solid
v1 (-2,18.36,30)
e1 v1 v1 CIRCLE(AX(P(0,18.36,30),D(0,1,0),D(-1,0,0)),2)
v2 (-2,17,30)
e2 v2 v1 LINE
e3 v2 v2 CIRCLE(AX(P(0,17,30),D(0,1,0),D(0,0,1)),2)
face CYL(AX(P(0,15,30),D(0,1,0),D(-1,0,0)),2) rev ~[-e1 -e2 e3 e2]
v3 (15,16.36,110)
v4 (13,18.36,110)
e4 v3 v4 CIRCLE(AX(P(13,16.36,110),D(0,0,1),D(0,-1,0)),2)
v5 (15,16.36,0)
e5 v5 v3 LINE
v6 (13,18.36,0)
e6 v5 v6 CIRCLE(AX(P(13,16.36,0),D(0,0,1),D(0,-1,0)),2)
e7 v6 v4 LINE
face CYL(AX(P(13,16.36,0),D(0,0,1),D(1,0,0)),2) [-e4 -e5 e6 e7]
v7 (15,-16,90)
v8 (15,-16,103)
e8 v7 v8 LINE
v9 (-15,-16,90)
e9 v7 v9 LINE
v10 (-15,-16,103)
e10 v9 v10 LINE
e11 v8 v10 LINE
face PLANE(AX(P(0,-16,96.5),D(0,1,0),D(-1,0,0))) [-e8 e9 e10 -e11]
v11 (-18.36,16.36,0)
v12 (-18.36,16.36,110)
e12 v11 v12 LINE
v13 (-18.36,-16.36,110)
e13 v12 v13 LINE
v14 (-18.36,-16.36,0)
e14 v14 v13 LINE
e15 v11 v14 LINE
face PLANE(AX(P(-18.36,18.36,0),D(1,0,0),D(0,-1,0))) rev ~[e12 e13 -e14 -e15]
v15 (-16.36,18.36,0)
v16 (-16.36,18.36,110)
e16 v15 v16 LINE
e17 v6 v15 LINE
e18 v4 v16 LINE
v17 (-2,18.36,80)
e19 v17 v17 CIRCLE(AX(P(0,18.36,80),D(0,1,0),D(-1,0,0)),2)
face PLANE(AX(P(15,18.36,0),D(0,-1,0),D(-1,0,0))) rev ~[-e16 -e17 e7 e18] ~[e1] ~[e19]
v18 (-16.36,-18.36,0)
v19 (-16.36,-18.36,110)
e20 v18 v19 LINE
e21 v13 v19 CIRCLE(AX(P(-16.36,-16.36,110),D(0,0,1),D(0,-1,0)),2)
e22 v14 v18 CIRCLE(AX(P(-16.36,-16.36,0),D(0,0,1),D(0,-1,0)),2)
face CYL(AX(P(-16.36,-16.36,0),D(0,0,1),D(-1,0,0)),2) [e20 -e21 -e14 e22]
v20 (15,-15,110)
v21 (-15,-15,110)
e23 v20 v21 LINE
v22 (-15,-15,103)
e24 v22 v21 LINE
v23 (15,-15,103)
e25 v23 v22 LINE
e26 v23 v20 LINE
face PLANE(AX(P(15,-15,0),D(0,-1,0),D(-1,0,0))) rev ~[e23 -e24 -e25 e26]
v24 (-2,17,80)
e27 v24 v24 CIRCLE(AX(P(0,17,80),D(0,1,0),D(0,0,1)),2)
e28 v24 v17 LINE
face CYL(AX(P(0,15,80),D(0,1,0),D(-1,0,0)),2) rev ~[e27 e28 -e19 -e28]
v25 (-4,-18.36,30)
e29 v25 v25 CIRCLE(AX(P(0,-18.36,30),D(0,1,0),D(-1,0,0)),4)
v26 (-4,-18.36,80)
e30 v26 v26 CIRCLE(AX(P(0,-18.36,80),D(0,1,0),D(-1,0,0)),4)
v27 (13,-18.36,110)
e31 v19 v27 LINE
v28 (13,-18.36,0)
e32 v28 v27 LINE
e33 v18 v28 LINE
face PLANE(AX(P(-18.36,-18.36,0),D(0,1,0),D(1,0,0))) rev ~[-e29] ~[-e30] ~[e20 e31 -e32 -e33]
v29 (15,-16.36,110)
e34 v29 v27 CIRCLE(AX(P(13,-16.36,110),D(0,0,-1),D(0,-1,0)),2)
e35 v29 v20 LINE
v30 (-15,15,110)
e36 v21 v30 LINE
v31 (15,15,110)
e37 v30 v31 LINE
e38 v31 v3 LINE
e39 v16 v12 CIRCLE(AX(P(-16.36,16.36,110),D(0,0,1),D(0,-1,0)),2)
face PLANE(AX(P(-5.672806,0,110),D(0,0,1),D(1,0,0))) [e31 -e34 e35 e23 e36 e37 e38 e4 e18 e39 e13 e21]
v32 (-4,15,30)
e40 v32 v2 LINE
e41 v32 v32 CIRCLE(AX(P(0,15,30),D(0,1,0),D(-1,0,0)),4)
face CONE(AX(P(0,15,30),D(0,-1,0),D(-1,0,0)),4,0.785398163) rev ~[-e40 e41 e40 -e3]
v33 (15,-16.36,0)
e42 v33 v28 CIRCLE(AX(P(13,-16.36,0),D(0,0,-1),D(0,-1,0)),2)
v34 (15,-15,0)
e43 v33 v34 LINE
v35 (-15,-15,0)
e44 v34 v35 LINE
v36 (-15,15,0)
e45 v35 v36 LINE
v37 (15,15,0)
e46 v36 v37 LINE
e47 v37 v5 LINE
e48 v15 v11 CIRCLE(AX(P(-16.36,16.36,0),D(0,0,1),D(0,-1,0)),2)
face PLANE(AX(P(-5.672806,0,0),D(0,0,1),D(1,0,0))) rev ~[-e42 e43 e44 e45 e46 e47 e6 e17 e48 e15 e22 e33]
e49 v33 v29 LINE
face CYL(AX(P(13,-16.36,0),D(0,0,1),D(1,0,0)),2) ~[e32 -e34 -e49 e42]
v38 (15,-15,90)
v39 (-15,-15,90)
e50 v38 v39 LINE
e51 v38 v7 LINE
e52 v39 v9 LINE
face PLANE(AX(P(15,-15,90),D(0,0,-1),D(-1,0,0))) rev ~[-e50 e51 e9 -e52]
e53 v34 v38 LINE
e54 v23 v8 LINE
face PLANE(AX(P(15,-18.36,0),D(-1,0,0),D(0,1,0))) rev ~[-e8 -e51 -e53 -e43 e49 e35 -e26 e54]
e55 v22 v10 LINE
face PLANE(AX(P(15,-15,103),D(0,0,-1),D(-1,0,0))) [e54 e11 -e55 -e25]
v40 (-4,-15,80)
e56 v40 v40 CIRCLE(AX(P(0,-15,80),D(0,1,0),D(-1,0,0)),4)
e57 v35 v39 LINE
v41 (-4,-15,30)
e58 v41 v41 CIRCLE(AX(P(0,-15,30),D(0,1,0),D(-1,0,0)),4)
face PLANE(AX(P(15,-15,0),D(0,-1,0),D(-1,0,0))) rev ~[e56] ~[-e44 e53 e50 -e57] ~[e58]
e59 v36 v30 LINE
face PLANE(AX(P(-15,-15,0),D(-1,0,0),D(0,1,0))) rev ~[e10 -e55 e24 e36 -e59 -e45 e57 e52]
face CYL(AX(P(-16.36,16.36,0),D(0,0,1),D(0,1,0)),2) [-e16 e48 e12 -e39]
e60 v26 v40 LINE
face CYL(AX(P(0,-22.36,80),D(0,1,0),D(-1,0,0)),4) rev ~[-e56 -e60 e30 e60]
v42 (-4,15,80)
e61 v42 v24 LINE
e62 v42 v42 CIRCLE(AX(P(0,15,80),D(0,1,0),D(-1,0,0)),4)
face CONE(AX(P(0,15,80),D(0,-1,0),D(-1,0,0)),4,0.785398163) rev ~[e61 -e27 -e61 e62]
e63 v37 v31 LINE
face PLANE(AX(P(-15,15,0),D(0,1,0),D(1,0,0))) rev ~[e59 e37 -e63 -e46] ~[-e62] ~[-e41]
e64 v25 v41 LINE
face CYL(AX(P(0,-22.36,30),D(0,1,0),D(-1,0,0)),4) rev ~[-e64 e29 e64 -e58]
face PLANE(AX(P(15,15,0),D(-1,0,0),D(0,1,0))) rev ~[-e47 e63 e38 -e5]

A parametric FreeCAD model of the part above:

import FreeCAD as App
import Part
import Sketcher


def edges_at(feature, points):
    """Names of the edges that pass closest to the given points."""
    edges = feature.Shape.Edges
    near = lambda p: min(range(len(edges)), key=lambda i: edges[i].distToShape(Part.Vertex(*p))[0])
    return sorted({f"Edge{near(p) + 1}" for p in points})

doc = App.newDocument("Part")
params = doc.addObject("Spreadsheet::Sheet", "Params")
for row, (alias, value) in enumerate([
    ("sketch1_width", "30 mm"),
    ("sketch1_width2", "33.36 mm"),
    ("sketch1_height", "3.36 mm"),
    ("pad1_length", "110 mm"),
    ("fillet_radius", "2 mm"),
    ("sketch2_diameter", "8 mm"),
    ("hole_diameter", "8 mm"),
    ("hole_depth", "4 mm"),
    ("sketch3_diameter", "4 mm"),
    ("hole2_diameter", "4 mm"),
    ("hole2_depth", "4 mm"),
    ("hole2_csink_diameter", "8 mm"),
    ("sketch4_width", "30 mm"),
    ("sketch4_height", "13 mm"),
    ("pocket1_length", "1 mm"),
], start=1):
    params.set(f"A{row}", alias)
    params.set(f"B{row}", "=" + value)
    params.setAlias(f"B{row}", alias)

body = doc.addObject("PartDesign::Body", "Body")

sketch1 = body.newObject("Sketcher::SketchObject", "Sketch")
sketch1.AttachmentSupport = (doc.getObject("XY_Plane"), [""])
sketch1.MapMode = "FlatFace"
sketch1.addGeometry([
    Part.LineSegment(App.Vector(15, -18.36, 0), App.Vector(15, -15, 0)),
    Part.LineSegment(App.Vector(15, -15, 0), App.Vector(-15, -15, 0)),
    Part.LineSegment(App.Vector(-15, -15, 0), App.Vector(-15, 15, 0)),
    Part.LineSegment(App.Vector(-15, 15, 0), App.Vector(15, 15, 0)),
    Part.LineSegment(App.Vector(15, 15, 0), App.Vector(15, 18.36, 0)),
    Part.LineSegment(App.Vector(15, 18.36, 0), App.Vector(-18.36, 18.36, 0)),
    Part.LineSegment(App.Vector(-18.36, 18.36, 0), App.Vector(-18.36, -18.36, 0)),
    Part.LineSegment(App.Vector(-18.36, -18.36, 0), App.Vector(15, -18.36, 0)),
], False)
sketch1.addConstraint([
    Sketcher.Constraint("Coincident", 0, 2, 1, 1),
    Sketcher.Constraint("Coincident", 1, 2, 2, 1),
    Sketcher.Constraint("Coincident", 2, 2, 3, 1),
    Sketcher.Constraint("Coincident", 3, 2, 4, 1),
    Sketcher.Constraint("Coincident", 4, 2, 5, 1),
    Sketcher.Constraint("Coincident", 5, 2, 6, 1),
    Sketcher.Constraint("Coincident", 6, 2, 7, 1),
    Sketcher.Constraint("Coincident", 7, 2, 0, 1),
    Sketcher.Constraint("Vertical", 0),
    Sketcher.Constraint("Horizontal", 1),
    Sketcher.Constraint("Vertical", 2),
    Sketcher.Constraint("Horizontal", 3),
    Sketcher.Constraint("Vertical", 4),
    Sketcher.Constraint("Horizontal", 5),
    Sketcher.Constraint("Vertical", 6),
    Sketcher.Constraint("Horizontal", 7),
    Sketcher.Constraint("Symmetric", 0, 2, 2, 2, -1, 1),
    Sketcher.Constraint("Symmetric", 4, 2, 7, 2, -1),
    Sketcher.Constraint("Equal", 3, 2),
    Sketcher.Constraint("DistanceX", 1, 2, 1, 1, 30.0),
    Sketcher.Constraint("DistanceX", 5, 2, 5, 1, 33.36),
    Sketcher.Constraint("DistanceY", 0, 1, 0, 2, 3.36),
])
sketch1.setExpression("Constraints[19]", "Params.sketch1_width")
sketch1.setExpression("Constraints[20]", "Params.sketch1_width2")
sketch1.setExpression("Constraints[21]", "Params.sketch1_height")
pad1 = body.newObject("PartDesign::Pad", "Pad")
pad1.Profile = sketch1
pad1.setExpression("Length", "Params.pad1_length")
doc.recompute()

fillet = body.newObject("PartDesign::Fillet", "Fillet")
fillet.Base = (pad1, edges_at(pad1, [
    (-18.36, -18.36, 55),
    (-18.36, 18.36, 55),
    (15, -18.36, 55),
    (15, 18.36, 55),
]))
fillet.setExpression("Radius", "Params.fillet_radius")

sketch2 = body.newObject("Sketcher::SketchObject", "Sketch001")
sketch2.AttachmentSupport = (doc.getObject("XZ_Plane"), [""])
sketch2.MapMode = "FlatFace"
sketch2.AttachmentOffset = App.Placement(App.Vector(0, 0, 18.36), App.Rotation())
sketch2.addGeometry([
    Part.Circle(App.Vector(0, 30, 0), App.Vector(0, 0, 1), 4),
    Part.Circle(App.Vector(0, 80, 0), App.Vector(0, 0, 1), 4),
], False)
sketch2.addConstraint([
    Sketcher.Constraint("Equal", 0, 1),
    Sketcher.Constraint("PointOnObject", 0, 3, -2),
    Sketcher.Constraint("PointOnObject", 1, 3, -2),
    Sketcher.Constraint("Diameter", 0, 8.0),
    Sketcher.Constraint("DistanceY", -1, 1, 0, 3, 30.0),
    Sketcher.Constraint("DistanceY", -1, 1, 1, 3, 80.0),
])
sketch2.setExpression("Constraints[3]", "Params.sketch2_diameter")
doc.recompute()
hole = body.newObject("PartDesign::Hole", "Hole")
hole.Profile = sketch2
hole.ThreadType = "None"
hole.setExpression("Diameter", "Params.hole_diameter")
hole.DepthType = "Dimension"
hole.setExpression("Depth", "Params.hole_depth")
hole.DrillPoint = "Flat"

sketch3 = body.newObject("Sketcher::SketchObject", "Sketch002")
sketch3.AttachmentSupport = (doc.getObject("XZ_Plane"), [""])
sketch3.MapMode = "FlatFace"
sketch3.AttachmentOffset = App.Placement(App.Vector(0, 0, -15), App.Rotation())
sketch3.addGeometry([
    Part.Circle(App.Vector(0, 30, 0), App.Vector(0, 0, 1), 2),
    Part.Circle(App.Vector(0, 80, 0), App.Vector(0, 0, 1), 2),
], False)
sketch3.addConstraint([
    Sketcher.Constraint("Equal", 0, 1),
    Sketcher.Constraint("PointOnObject", 0, 3, -2),
    Sketcher.Constraint("PointOnObject", 1, 3, -2),
    Sketcher.Constraint("Diameter", 0, 4.0),
    Sketcher.Constraint("DistanceY", -1, 1, 0, 3, 30.0),
    Sketcher.Constraint("DistanceY", -1, 1, 1, 3, 80.0),
])
sketch3.setExpression("Constraints[3]", "Params.sketch3_diameter")
doc.recompute()
hole2 = body.newObject("PartDesign::Hole", "Hole001")
hole2.Profile = sketch3
hole2.ThreadType = "None"
hole2.setExpression("Diameter", "Params.hole2_diameter")
hole2.DepthType = "Dimension"
hole2.setExpression("Depth", "Params.hole2_depth")
hole2.DrillPoint = "Flat"
hole2.HoleCutType = "Countersink"
hole2.setExpression("HoleCutDiameter", "Params.hole2_csink_diameter")
hole2.HoleCutCountersinkAngle = 90

sketch4 = body.newObject("Sketcher::SketchObject", "Sketch003")
sketch4.AttachmentSupport = (doc.getObject("XZ_Plane"), [""])
sketch4.MapMode = "FlatFace"
sketch4.AttachmentOffset = App.Placement(App.Vector(0, 0, 15), App.Rotation())
sketch4.addGeometry([
    Part.LineSegment(App.Vector(15, 103, 0), App.Vector(15, 90, 0)),
    Part.LineSegment(App.Vector(15, 90, 0), App.Vector(-15, 90, 0)),
    Part.LineSegment(App.Vector(-15, 90, 0), App.Vector(-15, 103, 0)),
    Part.LineSegment(App.Vector(-15, 103, 0), App.Vector(15, 103, 0)),
], False)
sketch4.addConstraint([
    Sketcher.Constraint("Coincident", 0, 2, 1, 1),
    Sketcher.Constraint("Coincident", 1, 2, 2, 1),
    Sketcher.Constraint("Coincident", 2, 2, 3, 1),
    Sketcher.Constraint("Coincident", 3, 2, 0, 1),
    Sketcher.Constraint("Vertical", 0),
    Sketcher.Constraint("Horizontal", 1),
    Sketcher.Constraint("Vertical", 2),
    Sketcher.Constraint("Horizontal", 3),
    Sketcher.Constraint("DistanceX", 1, 2, 1, 1, 30.0),
    Sketcher.Constraint("DistanceY", 0, 2, 0, 1, 13.0),
    Sketcher.Constraint("DistanceX", -1, 1, 0, 2, 15.0),
    Sketcher.Constraint("DistanceY", -1, 1, 0, 2, 90.0),
])
sketch4.setExpression("Constraints[8]", "Params.sketch4_width")
sketch4.setExpression("Constraints[9]", "Params.sketch4_height")
pocket1 = body.newObject("PartDesign::Pocket", "Pocket")
pocket1.Profile = sketch4
pocket1.setExpression("Length", "Params.pocket1_length")
pocket1.Reversed = True

doc.recompute()
